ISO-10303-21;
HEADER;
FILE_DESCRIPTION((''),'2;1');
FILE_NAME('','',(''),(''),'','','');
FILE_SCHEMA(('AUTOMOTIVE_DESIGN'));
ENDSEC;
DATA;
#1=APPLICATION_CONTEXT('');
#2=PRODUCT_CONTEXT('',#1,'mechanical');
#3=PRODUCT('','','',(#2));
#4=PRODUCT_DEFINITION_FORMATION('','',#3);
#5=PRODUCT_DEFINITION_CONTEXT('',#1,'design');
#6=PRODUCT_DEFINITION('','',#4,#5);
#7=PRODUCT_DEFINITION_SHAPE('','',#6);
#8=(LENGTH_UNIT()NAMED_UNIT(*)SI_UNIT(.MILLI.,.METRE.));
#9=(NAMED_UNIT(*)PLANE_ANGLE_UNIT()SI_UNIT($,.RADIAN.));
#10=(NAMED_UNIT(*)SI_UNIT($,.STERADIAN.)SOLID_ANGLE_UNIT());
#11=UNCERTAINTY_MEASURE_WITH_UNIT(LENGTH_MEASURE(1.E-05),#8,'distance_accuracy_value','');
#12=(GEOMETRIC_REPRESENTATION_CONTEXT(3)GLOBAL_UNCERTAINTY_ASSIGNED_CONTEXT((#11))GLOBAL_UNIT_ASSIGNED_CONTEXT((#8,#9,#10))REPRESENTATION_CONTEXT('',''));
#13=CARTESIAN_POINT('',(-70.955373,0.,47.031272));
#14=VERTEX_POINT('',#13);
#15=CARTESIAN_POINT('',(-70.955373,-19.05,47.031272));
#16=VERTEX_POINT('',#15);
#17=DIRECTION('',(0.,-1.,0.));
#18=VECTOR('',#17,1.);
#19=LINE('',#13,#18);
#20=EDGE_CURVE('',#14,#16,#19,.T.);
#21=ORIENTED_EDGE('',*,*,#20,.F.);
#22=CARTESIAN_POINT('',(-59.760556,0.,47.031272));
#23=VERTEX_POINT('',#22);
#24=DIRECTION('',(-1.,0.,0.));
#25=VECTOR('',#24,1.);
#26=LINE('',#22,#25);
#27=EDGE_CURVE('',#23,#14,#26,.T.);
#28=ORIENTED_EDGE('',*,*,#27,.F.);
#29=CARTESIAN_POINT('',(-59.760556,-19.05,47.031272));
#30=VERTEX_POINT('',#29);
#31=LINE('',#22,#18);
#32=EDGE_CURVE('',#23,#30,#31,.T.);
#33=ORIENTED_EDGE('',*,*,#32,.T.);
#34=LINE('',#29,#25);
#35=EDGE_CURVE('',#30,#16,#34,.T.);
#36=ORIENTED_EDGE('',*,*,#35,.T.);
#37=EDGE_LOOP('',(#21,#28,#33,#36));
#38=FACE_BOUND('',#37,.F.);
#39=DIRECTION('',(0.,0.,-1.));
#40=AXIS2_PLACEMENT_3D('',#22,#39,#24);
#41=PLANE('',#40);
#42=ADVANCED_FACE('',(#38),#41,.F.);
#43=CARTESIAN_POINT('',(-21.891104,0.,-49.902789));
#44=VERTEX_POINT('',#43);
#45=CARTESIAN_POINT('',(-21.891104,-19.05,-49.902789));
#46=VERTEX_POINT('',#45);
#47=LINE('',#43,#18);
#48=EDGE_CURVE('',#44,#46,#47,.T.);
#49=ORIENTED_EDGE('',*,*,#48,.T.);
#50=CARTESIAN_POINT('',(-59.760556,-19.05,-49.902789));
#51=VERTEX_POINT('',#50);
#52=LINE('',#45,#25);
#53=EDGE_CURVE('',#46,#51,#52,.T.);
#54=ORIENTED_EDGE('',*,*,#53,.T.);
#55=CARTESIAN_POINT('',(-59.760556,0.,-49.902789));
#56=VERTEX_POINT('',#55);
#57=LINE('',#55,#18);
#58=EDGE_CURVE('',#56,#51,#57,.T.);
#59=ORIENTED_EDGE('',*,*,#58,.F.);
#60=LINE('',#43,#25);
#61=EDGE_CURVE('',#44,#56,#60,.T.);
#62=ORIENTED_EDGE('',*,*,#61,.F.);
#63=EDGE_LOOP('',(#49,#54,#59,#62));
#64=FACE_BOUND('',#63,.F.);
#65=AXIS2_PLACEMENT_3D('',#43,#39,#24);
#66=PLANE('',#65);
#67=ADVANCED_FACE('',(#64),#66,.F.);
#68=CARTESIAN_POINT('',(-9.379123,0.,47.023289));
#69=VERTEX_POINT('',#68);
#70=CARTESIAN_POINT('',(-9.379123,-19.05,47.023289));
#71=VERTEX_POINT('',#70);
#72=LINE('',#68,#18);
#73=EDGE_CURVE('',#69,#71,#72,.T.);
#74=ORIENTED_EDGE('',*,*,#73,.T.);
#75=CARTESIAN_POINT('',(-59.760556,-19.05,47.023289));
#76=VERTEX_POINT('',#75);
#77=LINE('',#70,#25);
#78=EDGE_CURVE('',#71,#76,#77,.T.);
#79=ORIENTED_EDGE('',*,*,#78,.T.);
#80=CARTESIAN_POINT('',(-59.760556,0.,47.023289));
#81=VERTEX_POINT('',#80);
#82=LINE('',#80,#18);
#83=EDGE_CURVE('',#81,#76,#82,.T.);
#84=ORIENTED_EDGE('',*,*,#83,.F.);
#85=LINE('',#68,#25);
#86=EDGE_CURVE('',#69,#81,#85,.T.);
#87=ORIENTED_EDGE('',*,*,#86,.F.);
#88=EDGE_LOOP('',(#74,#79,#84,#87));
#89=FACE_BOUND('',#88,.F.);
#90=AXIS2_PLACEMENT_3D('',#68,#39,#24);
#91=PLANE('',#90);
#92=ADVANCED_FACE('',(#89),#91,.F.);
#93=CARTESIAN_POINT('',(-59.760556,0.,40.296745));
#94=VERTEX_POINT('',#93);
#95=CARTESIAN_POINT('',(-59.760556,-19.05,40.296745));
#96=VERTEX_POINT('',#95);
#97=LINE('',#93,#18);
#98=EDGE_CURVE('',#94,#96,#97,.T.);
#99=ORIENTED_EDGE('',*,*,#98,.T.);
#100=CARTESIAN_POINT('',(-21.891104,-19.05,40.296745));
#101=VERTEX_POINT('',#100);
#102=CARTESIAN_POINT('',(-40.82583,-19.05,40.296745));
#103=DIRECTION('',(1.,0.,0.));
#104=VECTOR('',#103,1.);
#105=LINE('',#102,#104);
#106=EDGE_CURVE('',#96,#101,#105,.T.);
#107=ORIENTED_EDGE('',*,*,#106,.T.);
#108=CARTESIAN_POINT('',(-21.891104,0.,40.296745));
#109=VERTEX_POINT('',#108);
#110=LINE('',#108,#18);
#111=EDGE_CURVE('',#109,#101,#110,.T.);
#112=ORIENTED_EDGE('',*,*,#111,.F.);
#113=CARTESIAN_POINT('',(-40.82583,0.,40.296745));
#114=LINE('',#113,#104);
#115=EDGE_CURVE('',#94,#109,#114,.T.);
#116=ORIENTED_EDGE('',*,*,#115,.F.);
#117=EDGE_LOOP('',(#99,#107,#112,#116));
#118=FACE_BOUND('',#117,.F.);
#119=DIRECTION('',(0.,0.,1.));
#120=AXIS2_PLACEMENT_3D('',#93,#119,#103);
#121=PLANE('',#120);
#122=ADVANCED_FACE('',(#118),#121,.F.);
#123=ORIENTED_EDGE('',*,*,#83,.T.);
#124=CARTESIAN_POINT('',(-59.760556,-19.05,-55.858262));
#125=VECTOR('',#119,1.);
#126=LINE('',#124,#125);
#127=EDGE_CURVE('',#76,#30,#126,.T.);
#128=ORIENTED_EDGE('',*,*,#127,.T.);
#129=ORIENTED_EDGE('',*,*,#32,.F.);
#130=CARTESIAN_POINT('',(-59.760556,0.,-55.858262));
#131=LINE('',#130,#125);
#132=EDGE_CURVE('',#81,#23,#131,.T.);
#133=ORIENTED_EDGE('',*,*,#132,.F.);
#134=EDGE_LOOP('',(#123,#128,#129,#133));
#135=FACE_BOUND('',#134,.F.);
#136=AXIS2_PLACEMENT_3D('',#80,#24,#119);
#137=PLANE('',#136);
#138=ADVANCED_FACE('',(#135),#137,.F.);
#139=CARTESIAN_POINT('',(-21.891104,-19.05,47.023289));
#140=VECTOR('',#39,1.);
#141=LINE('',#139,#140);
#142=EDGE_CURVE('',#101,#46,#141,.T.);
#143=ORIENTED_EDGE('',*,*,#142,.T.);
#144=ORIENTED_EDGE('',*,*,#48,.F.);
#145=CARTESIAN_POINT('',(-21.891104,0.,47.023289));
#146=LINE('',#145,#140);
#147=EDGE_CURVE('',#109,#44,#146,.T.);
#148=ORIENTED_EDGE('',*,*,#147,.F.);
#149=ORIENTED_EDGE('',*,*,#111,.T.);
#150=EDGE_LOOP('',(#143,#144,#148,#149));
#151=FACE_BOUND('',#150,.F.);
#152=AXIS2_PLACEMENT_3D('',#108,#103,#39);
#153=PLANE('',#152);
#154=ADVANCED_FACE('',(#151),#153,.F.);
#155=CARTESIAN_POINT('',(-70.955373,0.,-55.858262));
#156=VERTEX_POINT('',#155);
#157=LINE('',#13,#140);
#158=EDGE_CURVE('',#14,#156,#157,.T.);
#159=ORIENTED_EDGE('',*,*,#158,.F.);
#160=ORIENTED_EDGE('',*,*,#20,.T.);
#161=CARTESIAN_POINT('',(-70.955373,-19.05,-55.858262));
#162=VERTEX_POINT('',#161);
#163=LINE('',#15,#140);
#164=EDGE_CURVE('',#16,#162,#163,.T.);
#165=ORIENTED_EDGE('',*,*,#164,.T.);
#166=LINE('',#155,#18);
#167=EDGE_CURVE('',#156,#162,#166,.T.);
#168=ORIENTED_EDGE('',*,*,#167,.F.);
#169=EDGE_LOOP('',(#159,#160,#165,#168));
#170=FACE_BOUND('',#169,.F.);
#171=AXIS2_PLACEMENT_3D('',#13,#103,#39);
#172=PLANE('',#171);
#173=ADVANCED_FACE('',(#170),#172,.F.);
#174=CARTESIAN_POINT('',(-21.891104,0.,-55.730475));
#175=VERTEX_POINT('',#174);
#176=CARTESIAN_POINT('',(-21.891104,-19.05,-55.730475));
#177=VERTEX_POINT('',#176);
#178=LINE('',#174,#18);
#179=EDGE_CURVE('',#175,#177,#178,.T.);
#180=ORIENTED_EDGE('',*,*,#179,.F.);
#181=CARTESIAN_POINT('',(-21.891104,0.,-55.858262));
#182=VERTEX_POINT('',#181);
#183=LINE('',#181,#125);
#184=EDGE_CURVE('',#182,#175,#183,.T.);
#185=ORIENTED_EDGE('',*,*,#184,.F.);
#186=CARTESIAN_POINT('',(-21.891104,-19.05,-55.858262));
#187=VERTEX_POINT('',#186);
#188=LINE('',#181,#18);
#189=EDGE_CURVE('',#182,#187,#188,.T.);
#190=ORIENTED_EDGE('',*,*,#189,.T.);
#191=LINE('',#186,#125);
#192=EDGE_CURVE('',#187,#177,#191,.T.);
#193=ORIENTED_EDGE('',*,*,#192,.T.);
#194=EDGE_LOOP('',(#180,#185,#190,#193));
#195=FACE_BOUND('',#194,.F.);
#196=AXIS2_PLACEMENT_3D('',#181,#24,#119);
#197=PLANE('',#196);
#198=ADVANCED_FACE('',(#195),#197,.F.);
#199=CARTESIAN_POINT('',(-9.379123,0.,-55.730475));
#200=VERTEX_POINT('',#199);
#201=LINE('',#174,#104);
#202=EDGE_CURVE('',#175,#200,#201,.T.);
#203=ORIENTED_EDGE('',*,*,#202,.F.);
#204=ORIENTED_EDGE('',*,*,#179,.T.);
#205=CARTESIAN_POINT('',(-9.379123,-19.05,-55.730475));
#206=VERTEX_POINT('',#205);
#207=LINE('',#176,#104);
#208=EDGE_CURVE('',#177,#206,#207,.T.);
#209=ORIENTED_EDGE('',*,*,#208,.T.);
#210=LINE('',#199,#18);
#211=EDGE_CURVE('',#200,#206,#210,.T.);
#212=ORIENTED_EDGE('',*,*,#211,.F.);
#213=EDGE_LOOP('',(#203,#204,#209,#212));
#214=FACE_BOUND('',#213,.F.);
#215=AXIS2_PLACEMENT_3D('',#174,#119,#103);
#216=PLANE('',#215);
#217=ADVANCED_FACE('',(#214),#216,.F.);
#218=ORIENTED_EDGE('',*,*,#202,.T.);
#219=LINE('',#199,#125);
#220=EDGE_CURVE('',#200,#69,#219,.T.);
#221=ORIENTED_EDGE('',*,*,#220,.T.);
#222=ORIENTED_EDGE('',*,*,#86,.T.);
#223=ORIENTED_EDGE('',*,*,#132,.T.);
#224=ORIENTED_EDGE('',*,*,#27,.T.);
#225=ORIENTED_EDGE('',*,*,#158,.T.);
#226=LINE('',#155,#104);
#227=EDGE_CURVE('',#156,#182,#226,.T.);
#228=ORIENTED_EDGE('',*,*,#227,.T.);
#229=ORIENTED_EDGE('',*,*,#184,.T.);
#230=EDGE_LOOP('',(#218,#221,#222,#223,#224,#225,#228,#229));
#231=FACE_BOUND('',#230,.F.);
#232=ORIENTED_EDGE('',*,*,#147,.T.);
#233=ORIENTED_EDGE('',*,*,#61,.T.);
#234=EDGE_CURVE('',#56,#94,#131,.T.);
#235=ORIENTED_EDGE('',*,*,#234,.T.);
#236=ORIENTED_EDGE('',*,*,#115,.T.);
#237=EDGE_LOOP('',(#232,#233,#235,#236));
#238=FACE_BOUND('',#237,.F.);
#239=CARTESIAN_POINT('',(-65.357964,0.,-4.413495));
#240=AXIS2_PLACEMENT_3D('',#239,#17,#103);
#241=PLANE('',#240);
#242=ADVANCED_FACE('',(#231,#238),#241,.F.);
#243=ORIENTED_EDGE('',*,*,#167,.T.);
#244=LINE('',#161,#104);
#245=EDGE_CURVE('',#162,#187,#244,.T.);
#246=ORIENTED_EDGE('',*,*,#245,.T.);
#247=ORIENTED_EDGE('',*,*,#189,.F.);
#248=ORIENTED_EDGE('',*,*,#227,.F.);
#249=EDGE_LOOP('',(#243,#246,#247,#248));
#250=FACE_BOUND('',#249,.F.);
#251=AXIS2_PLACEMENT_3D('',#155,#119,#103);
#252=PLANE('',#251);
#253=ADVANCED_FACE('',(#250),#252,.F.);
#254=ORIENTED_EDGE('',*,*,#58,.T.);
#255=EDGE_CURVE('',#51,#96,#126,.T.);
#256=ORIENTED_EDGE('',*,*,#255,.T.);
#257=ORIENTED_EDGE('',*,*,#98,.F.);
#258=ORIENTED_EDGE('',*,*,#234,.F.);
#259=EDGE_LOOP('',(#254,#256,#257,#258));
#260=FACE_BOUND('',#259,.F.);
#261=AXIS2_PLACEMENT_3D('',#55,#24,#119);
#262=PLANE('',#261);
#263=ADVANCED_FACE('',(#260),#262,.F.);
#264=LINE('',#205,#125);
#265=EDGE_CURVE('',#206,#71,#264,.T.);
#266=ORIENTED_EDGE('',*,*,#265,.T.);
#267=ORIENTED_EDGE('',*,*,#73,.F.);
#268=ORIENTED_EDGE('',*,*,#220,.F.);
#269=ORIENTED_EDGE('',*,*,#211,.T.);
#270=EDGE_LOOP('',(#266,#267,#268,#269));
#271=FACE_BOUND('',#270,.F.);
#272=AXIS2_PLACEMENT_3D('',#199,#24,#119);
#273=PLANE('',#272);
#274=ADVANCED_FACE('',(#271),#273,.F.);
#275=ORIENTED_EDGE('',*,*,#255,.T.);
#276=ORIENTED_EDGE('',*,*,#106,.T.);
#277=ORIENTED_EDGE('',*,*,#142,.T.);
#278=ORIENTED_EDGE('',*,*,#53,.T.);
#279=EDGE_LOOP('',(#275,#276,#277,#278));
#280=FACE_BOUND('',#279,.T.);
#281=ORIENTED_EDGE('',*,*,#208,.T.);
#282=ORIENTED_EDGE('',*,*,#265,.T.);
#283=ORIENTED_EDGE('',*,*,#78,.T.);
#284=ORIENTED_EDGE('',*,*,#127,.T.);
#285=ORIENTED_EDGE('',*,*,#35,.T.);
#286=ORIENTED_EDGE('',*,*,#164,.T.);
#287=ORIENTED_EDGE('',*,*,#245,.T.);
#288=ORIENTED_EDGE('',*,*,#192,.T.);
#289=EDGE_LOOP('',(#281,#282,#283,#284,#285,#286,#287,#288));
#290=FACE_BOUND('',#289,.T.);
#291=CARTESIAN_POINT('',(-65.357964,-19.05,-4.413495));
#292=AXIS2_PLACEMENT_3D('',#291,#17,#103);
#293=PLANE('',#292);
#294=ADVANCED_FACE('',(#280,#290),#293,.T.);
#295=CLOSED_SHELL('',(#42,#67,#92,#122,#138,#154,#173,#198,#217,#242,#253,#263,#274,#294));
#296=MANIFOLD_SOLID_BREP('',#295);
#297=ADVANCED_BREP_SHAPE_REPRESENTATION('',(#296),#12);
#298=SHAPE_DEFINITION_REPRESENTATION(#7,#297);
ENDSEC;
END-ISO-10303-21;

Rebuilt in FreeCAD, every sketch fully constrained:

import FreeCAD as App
import Part
import Sketcher

V = App.Vector
Q = App.Units.Quantity

doc = App.newDocument("Part")
body = doc.addObject("PartDesign::Body", "Body")

# Sketch on XZ plane
sketch1 = body.newObject("Sketcher::SketchObject", "Sketch")
sketch1.AttachmentSupport = (doc.getObject("XZ_Plane"), [""])
sketch1.MapMode = "FlatFace"
sketch1.addGeometry([
    Part.LineSegment(V(-59.761, 47.031, 0), V(-70.955, 47.031, 0)),  # 0
    Part.LineSegment(V(-70.955, 47.031, 0), V(-70.955, -55.858, 0)),  # 1
    Part.LineSegment(V(-70.955, -55.858, 0), V(-21.891, -55.858, 0)),  # 2
    Part.LineSegment(V(-21.891, -55.858, 0), V(-21.891, -55.73, 0)),  # 3
    Part.LineSegment(V(-21.891, -55.73, 0), V(-9.379, -55.73, 0)),  # 4
    Part.LineSegment(V(-9.379, -55.73, 0), V(-9.379, 47.023, 0)),  # 5
    Part.LineSegment(V(-9.379, 47.023, 0), V(-59.761, 47.023, 0)),  # 6
    Part.LineSegment(V(-59.761, 47.023, 0), V(-59.761, 47.031, 0)),  # 7
    Part.LineSegment(V(-21.891, 40.297, 0), V(-21.891, -49.903, 0)),  # 8
    Part.LineSegment(V(-21.891, -49.903, 0), V(-59.761, -49.903, 0)),  # 9
    Part.LineSegment(V(-59.761, -49.903, 0), V(-59.761, 40.297, 0)),  # 10
    Part.LineSegment(V(-59.761, 40.297, 0), V(-21.891, 40.297, 0)),  # 11
], False)
sketch1.addConstraint([
    Sketcher.Constraint("Coincident", 0, 2, 1, 1),
    Sketcher.Constraint("Coincident", 1, 2, 2, 1),
    Sketcher.Constraint("Coincident", 2, 2, 3, 1),
    Sketcher.Constraint("Coincident", 3, 2, 4, 1),
    Sketcher.Constraint("Coincident", 4, 2, 5, 1),
    Sketcher.Constraint("Coincident", 5, 2, 6, 1),
    Sketcher.Constraint("Coincident", 6, 2, 7, 1),
    Sketcher.Constraint("Coincident", 7, 2, 0, 1),
    Sketcher.Constraint("Coincident", 8, 2, 9, 1),
    Sketcher.Constraint("Coincident", 9, 2, 10, 1),
    Sketcher.Constraint("Coincident", 10, 2, 11, 1),
    Sketcher.Constraint("Coincident", 11, 2, 8, 1),
    Sketcher.Constraint("Horizontal", 0),
    Sketcher.Constraint("Vertical", 1),
    Sketcher.Constraint("Horizontal", 2),
    Sketcher.Constraint("Vertical", 3),
    Sketcher.Constraint("Horizontal", 4),
    Sketcher.Constraint("Vertical", 5),
    Sketcher.Constraint("Horizontal", 6),
    Sketcher.Constraint("Vertical", 7),
    Sketcher.Constraint("Vertical", 8),
    Sketcher.Constraint("Horizontal", 9),
    Sketcher.Constraint("Vertical", 10),
    Sketcher.Constraint("Horizontal", 11),
    Sketcher.Constraint("Vertical", 3, 2, 8, 2),
    Sketcher.Constraint("Vertical", 7, 2, 9, 2),
    Sketcher.Constraint("DistanceX", 2, 1, 2, 2, 49.064269),
    Sketcher.Constraint("DistanceX", 4, 1, 4, 2, 12.511981),
    Sketcher.Constraint("DistanceX", 0, 2, 0, 1, 11.194817),
    Sketcher.Constraint("DistanceY", 1, 2, 1, 1, 102.889534),
    Sketcher.Constraint("DistanceY", 3, 1, 3, 2, 0.127787),
    Sketcher.Constraint("DistanceY", 5, 1, 5, 2, 102.753764),
    Sketcher.Constraint("DistanceY", 8, 2, 8, 1, 90.199534),
    Sketcher.Constraint("DistanceY", -1, 1, 5, 2, 47.023289),
    Sketcher.Constraint("DistanceY", 8, 2, -1, 1, 49.902789),
    Sketcher.Constraint("DistanceX", 0, 2, -1, 1, 70.955373),
])
pad1 = body.newObject("PartDesign::Pad", "Pad")
pad1.Profile = sketch1
pad1.Length = Q("0.75 in")

doc.recompute()
